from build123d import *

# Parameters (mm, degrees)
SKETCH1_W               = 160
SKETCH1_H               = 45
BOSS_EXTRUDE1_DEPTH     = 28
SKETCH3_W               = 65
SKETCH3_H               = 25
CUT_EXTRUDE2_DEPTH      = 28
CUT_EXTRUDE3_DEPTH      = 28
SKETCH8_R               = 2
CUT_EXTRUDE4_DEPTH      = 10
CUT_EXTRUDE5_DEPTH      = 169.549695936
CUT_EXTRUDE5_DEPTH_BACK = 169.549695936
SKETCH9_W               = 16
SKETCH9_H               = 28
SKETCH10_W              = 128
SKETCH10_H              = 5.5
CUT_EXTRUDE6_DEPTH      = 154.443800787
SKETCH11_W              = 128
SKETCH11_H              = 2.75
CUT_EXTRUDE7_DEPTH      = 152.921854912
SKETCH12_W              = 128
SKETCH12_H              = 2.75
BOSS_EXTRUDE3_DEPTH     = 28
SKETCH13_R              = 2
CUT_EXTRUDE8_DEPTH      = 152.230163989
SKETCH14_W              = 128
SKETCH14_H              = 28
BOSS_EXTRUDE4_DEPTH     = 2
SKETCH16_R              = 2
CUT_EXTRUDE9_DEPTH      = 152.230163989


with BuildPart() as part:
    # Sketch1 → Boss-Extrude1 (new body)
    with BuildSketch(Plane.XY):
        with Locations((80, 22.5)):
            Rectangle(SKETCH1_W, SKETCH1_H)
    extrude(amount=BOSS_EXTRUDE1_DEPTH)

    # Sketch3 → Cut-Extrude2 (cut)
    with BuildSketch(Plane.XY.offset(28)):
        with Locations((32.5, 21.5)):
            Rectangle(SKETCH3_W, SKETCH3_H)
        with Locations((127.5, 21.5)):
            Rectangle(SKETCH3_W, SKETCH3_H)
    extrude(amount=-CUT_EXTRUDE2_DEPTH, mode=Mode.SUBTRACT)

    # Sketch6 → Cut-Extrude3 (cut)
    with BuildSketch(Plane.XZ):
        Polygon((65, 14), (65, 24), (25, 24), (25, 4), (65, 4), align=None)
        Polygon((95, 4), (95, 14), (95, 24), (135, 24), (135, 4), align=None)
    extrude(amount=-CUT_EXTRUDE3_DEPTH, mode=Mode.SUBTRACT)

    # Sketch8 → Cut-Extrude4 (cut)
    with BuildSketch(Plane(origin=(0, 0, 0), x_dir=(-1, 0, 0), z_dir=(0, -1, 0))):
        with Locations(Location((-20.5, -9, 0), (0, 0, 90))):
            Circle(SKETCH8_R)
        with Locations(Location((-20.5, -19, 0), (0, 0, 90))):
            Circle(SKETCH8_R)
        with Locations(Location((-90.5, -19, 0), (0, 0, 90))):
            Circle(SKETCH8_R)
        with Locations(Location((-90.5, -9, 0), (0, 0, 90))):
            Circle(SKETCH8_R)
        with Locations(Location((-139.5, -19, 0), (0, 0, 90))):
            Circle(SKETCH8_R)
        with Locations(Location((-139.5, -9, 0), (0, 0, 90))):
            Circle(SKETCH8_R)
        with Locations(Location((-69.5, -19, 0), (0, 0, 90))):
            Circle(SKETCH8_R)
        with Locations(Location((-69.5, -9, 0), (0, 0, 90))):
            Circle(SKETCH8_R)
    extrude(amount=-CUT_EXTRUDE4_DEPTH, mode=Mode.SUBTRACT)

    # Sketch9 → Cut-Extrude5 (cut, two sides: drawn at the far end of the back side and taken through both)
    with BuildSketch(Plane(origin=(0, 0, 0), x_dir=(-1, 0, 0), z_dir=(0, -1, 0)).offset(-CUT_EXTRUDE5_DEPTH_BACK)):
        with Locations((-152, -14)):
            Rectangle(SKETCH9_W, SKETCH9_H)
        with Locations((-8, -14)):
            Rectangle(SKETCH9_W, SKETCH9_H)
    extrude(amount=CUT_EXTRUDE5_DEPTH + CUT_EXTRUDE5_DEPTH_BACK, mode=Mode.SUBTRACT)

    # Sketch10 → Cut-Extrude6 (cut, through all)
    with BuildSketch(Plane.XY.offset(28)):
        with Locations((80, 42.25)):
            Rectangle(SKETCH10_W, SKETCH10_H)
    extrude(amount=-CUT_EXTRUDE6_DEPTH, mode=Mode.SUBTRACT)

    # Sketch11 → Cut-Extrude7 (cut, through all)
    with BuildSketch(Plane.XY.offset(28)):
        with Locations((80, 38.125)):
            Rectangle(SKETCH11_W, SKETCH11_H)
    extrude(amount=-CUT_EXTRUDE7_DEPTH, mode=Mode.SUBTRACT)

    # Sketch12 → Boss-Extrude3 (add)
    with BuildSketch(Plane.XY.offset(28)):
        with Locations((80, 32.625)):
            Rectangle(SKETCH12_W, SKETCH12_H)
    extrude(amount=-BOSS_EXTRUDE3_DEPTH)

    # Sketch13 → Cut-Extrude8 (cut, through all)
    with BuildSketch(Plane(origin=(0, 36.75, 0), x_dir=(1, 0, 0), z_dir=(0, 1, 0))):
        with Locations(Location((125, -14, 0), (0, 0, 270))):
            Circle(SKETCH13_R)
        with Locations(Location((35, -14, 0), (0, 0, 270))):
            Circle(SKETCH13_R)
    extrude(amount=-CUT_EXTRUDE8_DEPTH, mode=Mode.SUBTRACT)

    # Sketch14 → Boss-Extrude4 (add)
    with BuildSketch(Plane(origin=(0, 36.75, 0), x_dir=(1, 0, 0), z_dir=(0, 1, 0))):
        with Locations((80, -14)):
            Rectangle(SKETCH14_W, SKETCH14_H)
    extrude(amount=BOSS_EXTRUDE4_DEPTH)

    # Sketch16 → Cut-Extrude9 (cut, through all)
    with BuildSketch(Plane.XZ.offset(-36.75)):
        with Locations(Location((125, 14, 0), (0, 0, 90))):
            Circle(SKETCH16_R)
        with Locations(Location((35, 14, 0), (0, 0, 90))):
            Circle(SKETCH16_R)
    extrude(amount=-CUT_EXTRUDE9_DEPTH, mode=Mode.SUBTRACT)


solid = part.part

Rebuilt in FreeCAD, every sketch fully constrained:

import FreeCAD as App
import Part
import Sketcher

V = App.Vector
Q = App.Units.Quantity

doc = App.newDocument("Part")
body = doc.addObject("PartDesign::Body", "Body")

sketch1 = body.newObject("Sketcher::SketchObject", "Sketch")
sketch1.AttachmentSupport = (doc.getObject("XY_Plane"), [""])
sketch1.MapMode = "FlatFace"
sketch1.addGeometry([
    Part.LineSegment(V(0, 45, 0), V(0, 0, 0)),
    Part.LineSegment(V(0, 0, 0), V(160, 0, 0)),
    Part.LineSegment(V(160, 0, 0), V(160, 45, 0)),
    Part.LineSegment(V(160, 45, 0), V(0, 45, 0)),
], False)
sketch1.addConstraint([
    Sketcher.Constraint("Coincident", 0, 2, 1, 1),
    Sketcher.Constraint("Coincident", 1, 2, 2, 1),
    Sketcher.Constraint("Coincident", 2, 2, 3, 1),
    Sketcher.Constraint("Coincident", 3, 2, 0, 1),
    Sketcher.Constraint("Vertical", 0),
    Sketcher.Constraint("Horizontal", 1),
    Sketcher.Constraint("Vertical", 2),
    Sketcher.Constraint("Horizontal", 3),
    Sketcher.Constraint("Coincident", 0, 2, -1, 1),
    Sketcher.Constraint("DistanceX", 1, 1, 1, 2, Q("160 mm")),
    Sketcher.Constraint("DistanceY", 0, 2, 0, 1, Q("45 mm")),
])
pad1 = body.newObject("PartDesign::Pad", "Pad")
pad1.Profile = sketch1
pad1.Length = 28

sketch2 = body.newObject("Sketcher::SketchObject", "Sketch001")
sketch2.AttachmentSupport = (doc.getObject("XY_Plane"), [""])
sketch2.MapMode = "FlatFace"
sketch2.AttachmentOffset = App.Placement(V(0, 0, 28), App.Rotation())
sketch2.addGeometry([
    Part.LineSegment(V(0, 34, 0), V(0, 9, 0)),
    Part.LineSegment(V(0, 9, 0), V(65, 9, 0)),
    Part.LineSegment(V(65, 9, 0), V(65, 34, 0)),
    Part.LineSegment(V(65, 34, 0), V(0, 34, 0)),
    Part.LineSegment(V(95, 34, 0), V(95, 9, 0)),
    Part.LineSegment(V(95, 9, 0), V(160, 9, 0)),
    Part.LineSegment(V(160, 9, 0), V(160, 34, 0)),
    Part.LineSegment(V(160, 34, 0), V(95, 34, 0)),
], False)
sketch2.addConstraint([
    Sketcher.Constraint("Coincident", 0, 2, 1, 1),
    Sketcher.Constraint("Coincident", 1, 2, 2, 1),
    Sketcher.Constraint("Coincident", 2, 2, 3, 1),
    Sketcher.Constraint("Coincident", 3, 2, 0, 1),
    Sketcher.Constraint("Coincident", 4, 2, 5, 1),
    Sketcher.Constraint("Coincident", 5, 2, 6, 1),
    Sketcher.Constraint("Coincident", 6, 2, 7, 1),
    Sketcher.Constraint("Coincident", 7, 2, 4, 1),
    Sketcher.Constraint("Vertical", 0),
    Sketcher.Constraint("Horizontal", 1),
    Sketcher.Constraint("Vertical", 2),
    Sketcher.Constraint("Horizontal", 3),
    Sketcher.Constraint("Vertical", 4),
    Sketcher.Constraint("Horizontal", 5),
    Sketcher.Constraint("Vertical", 6),
    Sketcher.Constraint("Horizontal", 7),
    Sketcher.Constraint("PointOnObject", 0, 2, -2),
    Sketcher.Constraint("Horizontal", 1, 2, 4, 2),
    Sketcher.Constraint("Horizontal", 3, 2, 6, 2),
    Sketcher.Constraint("Equal", 3, 5),
    Sketcher.Constraint("DistanceX", 1, 1, 1, 2, Q("65 mm")),
    Sketcher.Constraint("DistanceY", 0, 2, 0, 1, Q("25 mm")),
    Sketcher.Constraint("DistanceY", -1, 1, 0, 2, Q("9 mm")),
    Sketcher.Constraint("DistanceX", -1, 1, 4, 2, Q("95 mm")),
])
pocket1 = body.newObject("PartDesign::Pocket", "Pocket")
pocket1.Profile = sketch2
pocket1.Length = 28

sketch3 = body.newObject("Sketcher::SketchObject", "Sketch002")
sketch3.AttachmentSupport = (doc.getObject("XZ_Plane"), [""])
sketch3.MapMode = "FlatFace"
sketch3.addGeometry([
    Part.LineSegment(V(65, 24, 0), V(25, 24, 0)),
    Part.LineSegment(V(25, 24, 0), V(25, 4, 0)),
    Part.LineSegment(V(25, 4, 0), V(65, 4, 0)),
    Part.LineSegment(V(65, 4, 0), V(65, 24, 0)),
    Part.LineSegment(V(95, 24, 0), V(95, 4, 0)),
    Part.LineSegment(V(95, 4, 0), V(135, 4, 0)),
    Part.LineSegment(V(135, 4, 0), V(135, 24, 0)),
    Part.LineSegment(V(135, 24, 0), V(95, 24, 0)),
], False)
sketch3.addConstraint([
    Sketcher.Constraint("Coincident", 0, 2, 1, 1),
    Sketcher.Constraint("Coincident", 1, 2, 2, 1),
    Sketcher.Constraint("Coincident", 2, 2, 3, 1),
    Sketcher.Constraint("Coincident", 3, 2, 0, 1),
    Sketcher.Constraint("Coincident", 4, 2, 5, 1),
    Sketcher.Constraint("Coincident", 5, 2, 6, 1),
    Sketcher.Constraint("Coincident", 6, 2, 7, 1),
    Sketcher.Constraint("Coincident", 7, 2, 4, 1),
    Sketcher.Constraint("Horizontal", 0),
    Sketcher.Constraint("Vertical", 1),
    Sketcher.Constraint("Horizontal", 2),
    Sketcher.Constraint("Vertical", 3),
    Sketcher.Constraint("Vertical", 4),
    Sketcher.Constraint("Horizontal", 5),
    Sketcher.Constraint("Vertical", 6),
    Sketcher.Constraint("Horizontal", 7),
    Sketcher.Constraint("Horizontal", 2, 2, 4, 2),
    Sketcher.Constraint("Horizontal", 3, 2, 6, 2),
    Sketcher.Constraint("Equal", 2, 5),
    Sketcher.Constraint("DistanceX", 0, 2, 0, 1, Q("40 mm")),
    Sketcher.Constraint("DistanceY", 1, 2, 1, 1, Q("20 mm")),
    Sketcher.Constraint("DistanceX", -1, 1, 0, 2, Q("25 mm")),
    Sketcher.Constraint("DistanceY", -1, 1, 0, 2, Q("24 mm")),
    Sketcher.Constraint("DistanceX", -1, 1, 4, 2, Q("95 mm")),
])
pocket2 = body.newObject("PartDesign::Pocket", "Pocket001")
pocket2.Profile = sketch3
pocket2.Length = 28

sketch4 = body.newObject("Sketcher::SketchObject", "Sketch003")
sketch4.AttachmentSupport = (doc.getObject("XZ_Plane"), [""])
sketch4.MapMode = "FlatFace"
sketch4.addGeometry([
    Part.Circle(V(20.5, 9, 0), V(0, 0, 1), 2),
    Part.Circle(V(20.5, 19, 0), V(0, 0, 1), 2),
    Part.Circle(V(90.5, 19, 0), V(0, 0, 1), 2),
    Part.Circle(V(90.5, 9, 0), V(0, 0, 1), 2),
    Part.Circle(V(139.5, 19, 0), V(0, 0, 1), 2),
    Part.Circle(V(139.5, 9, 0), V(0, 0, 1), 2),
    Part.Circle(V(69.5, 19, 0), V(0, 0, 1), 2),
    Part.Circle(V(69.5, 9, 0), V(0, 0, 1), 2),
], False)
sketch4.addConstraint([
    Sketcher.Constraint("Equal", 0, 1),
    Sketcher.Constraint("Equal", 1, 2),
    Sketcher.Constraint("Equal", 2, 3),
    Sketcher.Constraint("Equal", 3, 4),
    Sketcher.Constraint("Equal", 4, 5),
    Sketcher.Constraint("Equal", 5, 6),
    Sketcher.Constraint("Equal", 6, 7),
    Sketcher.Constraint("Horizontal", 1, 3, 2, 3),
    Sketcher.Constraint("Horizontal", 0, 3, 3, 3),
    Sketcher.Constraint("Horizontal", 2, 3, 4, 3),
    Sketcher.Constraint("Horizontal", 3, 3, 5, 3),
    Sketcher.Constraint("Horizontal", 4, 3, 6, 3),
    Sketcher.Constraint("Horizontal", 5, 3, 7, 3),
    Sketcher.Constraint("Vertical", 0, 3, 1, 3),
    Sketcher.Constraint("Vertical", 2, 3, 3, 3),
    Sketcher.Constraint("Vertical", 4, 3, 5, 3),
    Sketcher.Constraint("Vertical", 6, 3, 7, 3),
    Sketcher.Constraint("Diameter", 0, Q("4 mm")),
    Sketcher.Constraint("DistanceY", -1, 1, 0, 3, Q("9 mm")),
    Sketcher.Constraint("DistanceY", -1, 1, 1, 3, Q("19 mm")),
    Sketcher.Constraint("DistanceX", 1, 3, 2, 3, Q("70 mm")),
    Sketcher.Constraint("DistanceX", 2, 3, 4, 3, Q("49 mm")),
    Sketcher.Constraint("DistanceX", 6, 3, 2, 3, Q("21 mm")),
    Sketcher.Constraint("DistanceX", -1, 1, 0, 3, Q("20.5 mm")),
])
pocket3 = body.newObject("PartDesign::Pocket", "Pocket002")
pocket3.Profile = sketch4
pocket3.Length = 10

sketch5 = body.newObject("Sketcher::SketchObject", "Sketch004")
sketch5.AttachmentSupport = (doc.getObject("XZ_Plane"), [""])
sketch5.MapMode = "FlatFace"
sketch5.addGeometry([
    Part.LineSegment(V(160, 0, 0), V(160, 28, 0)),
    Part.LineSegment(V(160, 28, 0), V(144, 28, 0)),
    Part.LineSegment(V(144, 28, 0), V(144, 0, 0)),
    Part.LineSegment(V(144, 0, 0), V(160, 0, 0)),
    Part.LineSegment(V(16, 0, 0), V(16, 28, 0)),
    Part.LineSegment(V(16, 28, 0), V(0, 28, 0)),
    Part.LineSegment(V(0, 28, 0), V(0, 0, 0)),
    Part.LineSegment(V(0, 0, 0), V(16, 0, 0)),
], False)
sketch5.addConstraint([
    Sketcher.Constraint("Coincident", 0, 2, 1, 1),
    Sketcher.Constraint("Coincident", 1, 2, 2, 1),
    Sketcher.Constraint("Coincident", 2, 2, 3, 1),
    Sketcher.Constraint("Coincident", 3, 2, 0, 1),
    Sketcher.Constraint("Coincident", 4, 2, 5, 1),
    Sketcher.Constraint("Coincident", 5, 2, 6, 1),
    Sketcher.Constraint("Coincident", 6, 2, 7, 1),
    Sketcher.Constraint("Coincident", 7, 2, 4, 1),
    Sketcher.Constraint("Vertical", 0),
    Sketcher.Constraint("Horizontal", 1),
    Sketcher.Constraint("Vertical", 2),
    Sketcher.Constraint("Horizontal", 3),
    Sketcher.Constraint("Vertical", 4),
    Sketcher.Constraint("Horizontal", 5),
    Sketcher.Constraint("Vertical", 6),
    Sketcher.Constraint("Horizontal", 7),
    Sketcher.Constraint("Coincident", 6, 2, -1, 1),
    Sketcher.Constraint("PointOnObject", 2, 2, -1),
    Sketcher.Constraint("Horizontal", 1, 2, 4, 2),
    Sketcher.Constraint("Equal", 3, 5),
    Sketcher.Constraint("DistanceX", 1, 2, 1, 1, Q("16 mm")),
    Sketcher.Constraint("DistanceY", 0, 1, 0, 2, Q("28 mm")),
    Sketcher.Constraint("DistanceX", -1, 1, 0, 2, Q("160 mm")),
])
pocket4 = body.newObject("PartDesign::Pocket", "Pocket003")
pocket4.Profile = sketch5
pocket4.Type = "ThroughAll"
pocket4.Midplane = True

sketch6 = body.newObject("Sketcher::SketchObject", "Sketch005")
sketch6.AttachmentSupport = (doc.getObject("XY_Plane"), [""])
sketch6.MapMode = "FlatFace"
sketch6.AttachmentOffset = App.Placement(V(0, 0, 28), App.Rotation())
sketch6.addGeometry([
    Part.LineSegment(V(16, 45, 0), V(16, 40, 0)),
    Part.LineSegment(V(16, 40, 0), V(144, 40, 0)),
    Part.LineSegment(V(144, 40, 0), V(144, 45, 0)),
    Part.LineSegment(V(144, 45, 0), V(16, 45, 0)),
], False)
sketch6.addConstraint([
    Sketcher.Constraint("Coincident", 0, 2, 1, 1),
    Sketcher.Constraint("Coincident", 1, 2, 2, 1),
    Sketcher.Constraint("Coincident", 2, 2, 3, 1),
    Sketcher.Constraint("Coincident", 3, 2, 0, 1),
    Sketcher.Constraint("Vertical", 0),
    Sketcher.Constraint("Horizontal", 1),
    Sketcher.Constraint("Vertical", 2),
    Sketcher.Constraint("Horizontal", 3),
    Sketcher.Constraint("DistanceX", 1, 1, 1, 2, Q("128 mm")),
    Sketcher.Constraint("DistanceY", 0, 2, 0, 1, Q("5.5 mm")),
    Sketcher.Constraint("DistanceX", -1, 1, 0, 2, Q("16 mm")),
    Sketcher.Constraint("DistanceY", -1, 1, 2, 2, Q("45 mm")),
])
pocket5 = body.newObject("PartDesign::Pocket", "Pocket004")
pocket5.Profile = sketch6
pocket5.Type = "ThroughAll"

sketch7 = body.newObject("Sketcher::SketchObject", "Sketch006")
sketch7.AttachmentSupport = (doc.getObject("XY_Plane"), [""])
sketch7.MapMode = "FlatFace"
sketch7.AttachmentOffset = App.Placement(V(0, 0, 28), App.Rotation())
sketch7.addGeometry([
    Part.LineSegment(V(16, 39.5, 0), V(16, 36.8, 0)),
    Part.LineSegment(V(16, 36.8, 0), V(144, 36.8, 0)),
    Part.LineSegment(V(144, 36.8, 0), V(144, 39.5, 0)),
    Part.LineSegment(V(144, 39.5, 0), V(16, 39.5, 0)),
], False)
sketch7.addConstraint([
    Sketcher.Constraint("Coincident", 0, 2, 1, 1),
    Sketcher.Constraint("Coincident", 1, 2, 2, 1),
    Sketcher.Constraint("Coincident", 2, 2, 3, 1),
    Sketcher.Constraint("Coincident", 3, 2, 0, 1),
    Sketcher.Constraint("Vertical", 0),
    Sketcher.Constraint("Horizontal", 1),
    Sketcher.Constraint("Vertical", 2),
    Sketcher.Constraint("Horizontal", 3),
    Sketcher.Constraint("DistanceX", 1, 1, 1, 2, Q("128 mm")),
    Sketcher.Constraint("DistanceX", -1, 1, 0, 2, Q("16 mm")),
    Sketcher.Constraint("DistanceY", 0, 2, 0, 1, Q("2.75 mm")),
    Sketcher.Constraint("DistanceY", -1, 1, 2, 2, Q("39.5 mm")),
])
pocket6 = body.newObject("PartDesign::Pocket", "Pocket005")
pocket6.Profile = sketch7
pocket6.Type = "ThroughAll"

sketch8 = body.newObject("Sketcher::SketchObject", "Sketch007")
sketch8.AttachmentSupport = (doc.getObject("XY_Plane"), [""])
sketch8.MapMode = "FlatFace"
sketch8.AttachmentOffset = App.Placement(V(0, 0, 28), App.Rotation())
sketch8.addGeometry([
    Part.LineSegment(V(16, 34, 0), V(16, 31.2, 0)),
    Part.LineSegment(V(16, 31.2, 0), V(144, 31.2, 0)),
    Part.LineSegment(V(144, 31.2, 0), V(144, 34, 0)),
    Part.LineSegment(V(144, 34, 0), V(16, 34, 0)),
], False)
sketch8.addConstraint([
    Sketcher.Constraint("Coincident", 0, 2, 1, 1),
    Sketcher.Constraint("Coincident", 1, 2, 2, 1),
    Sketcher.Constraint("Coincident", 2, 2, 3, 1),
    Sketcher.Constraint("Coincident", 3, 2, 0, 1),
    Sketcher.Constraint("Vertical", 0),
    Sketcher.Constraint("Horizontal", 1),
    Sketcher.Constraint("Vertical", 2),
    Sketcher.Constraint("Horizontal", 3),
    Sketcher.Constraint("DistanceX", 1, 1, 1, 2, Q("128 mm")),
    Sketcher.Constraint("DistanceX", -1, 1, 0, 2, Q("16 mm")),
    Sketcher.Constraint("DistanceY", -1, 1, 2, 2, Q("34 mm")),
    Sketcher.Constraint("DistanceY", 0, 2, 0, 1, Q("2.75 mm")),
])
pad2 = body.newObject("PartDesign::Pad", "Pad001")
pad2.Profile = sketch8
pad2.Length = 28
pad2.Reversed = True

sketch9 = body.newObject("Sketcher::SketchObject", "Sketch008")
sketch9.AttachmentSupport = (doc.getObject("XZ_Plane"), [""])
sketch9.MapMode = "FlatFace"
sketch9.AttachmentOffset = App.Placement(V(0, 0, -36.75), App.Rotation())
sketch9.addGeometry([
    Part.Circle(V(125, 14, 0), V(0, 0, 1), 2),
    Part.Circle(V(35, 14, 0), V(0, 0, 1), 2),
], False)
sketch9.addConstraint([
    Sketcher.Constraint("Equal", 0, 1),
    Sketcher.Constraint("Horizontal", 0, 3, 1, 3),
    Sketcher.Constraint("Diameter", 0, Q("4 mm")),
    Sketcher.Constraint("DistanceX", -1, 1, 0, 3, Q("125 mm")),
    Sketcher.Constraint("DistanceY", -1, 1, 0, 3, Q("14 mm")),
    Sketcher.Constraint("DistanceX", -1, 1, 1, 3, Q("35 mm")),
])
pocket7 = body.newObject("PartDesign::Pocket", "Pocket006")
pocket7.Profile = sketch9
pocket7.Type = "ThroughAll"
pocket7.Reversed = True

sketch10 = body.newObject("Sketcher::SketchObject", "Sketch009")
sketch10.AttachmentSupport = (doc.getObject("XZ_Plane"), [""])
sketch10.MapMode = "FlatFace"
sketch10.AttachmentOffset = App.Placement(V(0, 0, -36.75), App.Rotation())
sketch10.addGeometry([
    Part.LineSegment(V(16, 0, 0), V(16, 28, 0)),
    Part.LineSegment(V(16, 28, 0), V(144, 28, 0)),
    Part.LineSegment(V(144, 28, 0), V(144, 0, 0)),
    Part.LineSegment(V(144, 0, 0), V(16, 0, 0)),
], False)
sketch10.addConstraint([
    Sketcher.Constraint("Coincident", 0, 2, 1, 1),
    Sketcher.Constraint("Coincident", 1, 2, 2, 1),
    Sketcher.Constraint("Coincident", 2, 2, 3, 1),
    Sketcher.Constraint("Coincident", 3, 2, 0, 1),
    Sketcher.Constraint("Vertical", 0),
    Sketcher.Constraint("Horizontal", 1),
    Sketcher.Constraint("Vertical", 2),
    Sketcher.Constraint("Horizontal", 3),
    Sketcher.Constraint("PointOnObject", 2, 2, -1),
    Sketcher.Constraint("DistanceX", 1, 1, 1, 2, Q("128 mm")),
    Sketcher.Constraint("DistanceY", 0, 1, 0, 2, Q("28 mm")),
    Sketcher.Constraint("DistanceX", -1, 1, 0, 2, Q("16 mm")),
])
pad3 = body.newObject("PartDesign::Pad", "Pad002")
pad3.Profile = sketch10
pad3.Length = 2
pad3.Reversed = True

sketch11 = body.newObject("Sketcher::SketchObject", "Sketch010")
sketch11.AttachmentSupport = (doc.getObject("XZ_Plane"), [""])
sketch11.MapMode = "FlatFace"
sketch11.AttachmentOffset = App.Placement(V(0, 0, -36.75), App.Rotation())
sketch11.addGeometry([
    Part.Circle(V(125, 14, 0), V(0, 0, 1), 2),
    Part.Circle(V(35, 14, 0), V(0, 0, 1), 2),
], False)
sketch11.addConstraint([
    Sketcher.Constraint("Equal", 0, 1),
    Sketcher.Constraint("Horizontal", 0, 3, 1, 3),
    Sketcher.Constraint("Diameter", 0, Q("4 mm")),
    Sketcher.Constraint("DistanceX", -1, 1, 0, 3, Q("125 mm")),
    Sketcher.Constraint("DistanceY", -1, 1, 0, 3, Q("14 mm")),
    Sketcher.Constraint("DistanceX", -1, 1, 1, 3, Q("35 mm")),
])
pocket8 = body.newObject("PartDesign::Pocket", "Pocket007")
pocket8.Profile = sketch11
pocket8.Type = "ThroughAll"

doc.recompute()
